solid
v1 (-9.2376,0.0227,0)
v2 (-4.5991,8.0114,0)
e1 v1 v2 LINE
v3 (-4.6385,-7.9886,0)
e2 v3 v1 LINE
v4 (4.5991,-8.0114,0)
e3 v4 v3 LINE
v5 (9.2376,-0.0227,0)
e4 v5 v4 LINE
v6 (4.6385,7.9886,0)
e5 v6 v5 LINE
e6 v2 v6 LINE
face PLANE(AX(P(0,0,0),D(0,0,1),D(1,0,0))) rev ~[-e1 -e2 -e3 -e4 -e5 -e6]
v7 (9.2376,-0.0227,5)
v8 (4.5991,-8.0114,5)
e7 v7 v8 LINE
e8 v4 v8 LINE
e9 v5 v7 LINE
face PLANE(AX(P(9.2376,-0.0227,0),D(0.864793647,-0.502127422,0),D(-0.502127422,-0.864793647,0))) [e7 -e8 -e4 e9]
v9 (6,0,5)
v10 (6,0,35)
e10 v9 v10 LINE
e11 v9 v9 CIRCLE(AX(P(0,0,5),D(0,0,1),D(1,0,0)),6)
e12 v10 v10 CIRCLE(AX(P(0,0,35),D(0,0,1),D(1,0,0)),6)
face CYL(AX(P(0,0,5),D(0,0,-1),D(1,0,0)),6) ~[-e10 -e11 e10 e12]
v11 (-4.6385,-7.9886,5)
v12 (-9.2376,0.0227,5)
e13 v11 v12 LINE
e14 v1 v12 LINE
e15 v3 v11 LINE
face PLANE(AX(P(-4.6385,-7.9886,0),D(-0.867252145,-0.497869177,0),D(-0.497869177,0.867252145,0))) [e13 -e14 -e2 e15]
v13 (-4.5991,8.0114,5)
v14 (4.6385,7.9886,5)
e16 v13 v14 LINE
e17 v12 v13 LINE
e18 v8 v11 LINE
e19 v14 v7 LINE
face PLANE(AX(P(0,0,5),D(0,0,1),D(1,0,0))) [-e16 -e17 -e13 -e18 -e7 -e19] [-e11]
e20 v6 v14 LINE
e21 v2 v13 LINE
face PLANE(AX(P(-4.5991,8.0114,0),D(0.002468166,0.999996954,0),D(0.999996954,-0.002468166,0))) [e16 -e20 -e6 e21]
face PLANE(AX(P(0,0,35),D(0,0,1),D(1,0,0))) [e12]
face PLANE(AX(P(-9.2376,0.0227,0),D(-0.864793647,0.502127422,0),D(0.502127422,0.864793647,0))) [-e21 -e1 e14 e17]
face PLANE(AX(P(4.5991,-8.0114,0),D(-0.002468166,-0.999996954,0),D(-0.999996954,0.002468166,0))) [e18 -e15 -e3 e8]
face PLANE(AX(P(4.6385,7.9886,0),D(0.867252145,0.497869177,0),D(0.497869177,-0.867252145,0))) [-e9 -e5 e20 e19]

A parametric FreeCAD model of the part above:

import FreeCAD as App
import Part
import Sketcher

V = App.Vector
Q = App.Units.Quantity


def add_polygon(sketch, points):
    """Adds a closed chain of lines whose ends are joined by coincident constraints."""
    first, n = sketch.GeometryCount, len(points)
    for a, b in zip(points, points[1:] + points[:1]):
        sketch.addGeometry(Part.LineSegment(App.Vector(*a, 0), App.Vector(*b, 0)), False)
    for i in range(n):
        sketch.addConstraint(Sketcher.Constraint("Coincident", first + i, 2, first + (i + 1) % n, 1))

doc = App.newDocument("Part")
body = doc.addObject("PartDesign::Body", "Body")

sketch1 = doc.addObject("Sketcher::SketchObject", "Sketch")
body.addObject(sketch1)
sketch1.AttachmentSupport = (doc.XY_Plane, [""])
sketch1.MapMode = "FlatFace"
add_polygon(sketch1, [(-5, -8), (5, -8), (9, 0), (5, 8), (-5, 8), (-9, 0)])
sketch1.addConstraint([
    Sketcher.Constraint("Symmetric", 0, 2, 3, 2, -1, 1),
    Sketcher.Constraint("Symmetric", 1, 2, 4, 2, -1, 1),
    Sketcher.Constraint("Symmetric", 2, 2, 5, 2, -1, 1),
    Sketcher.Constraint("Equal", 0, 1),
    Sketcher.Constraint("Equal", 1, 2),
    Sketcher.Constraint("DistanceY", 0, 2, 2, 2, 16.0),
    Sketcher.Constraint("Angle", 1, Q("59.8592 deg")),
    Sketcher.Constraint("Angle", 2, Q("119.8591 deg")),
    Sketcher.Constraint("DistanceY", 1, 2, 3, 2, 8.034),
])
pad1 = doc.addObject("PartDesign::Pad", "Pad")
body.addObject(pad1)
pad1.Profile = sketch1
pad1.Length = 5

sketch2 = doc.addObject("Sketcher::SketchObject", "Sketch001")
body.addObject(sketch2)
sketch2.AttachmentSupport = (doc.XY_Plane, [""])
sketch2.MapMode = "FlatFace"
sketch2.AttachmentOffset = App.Placement(V(0, 0, 5), App.Rotation())
sketch2.addGeometry(Part.Circle(V(0, 0, 0), V(0, 0, 1), 6), False)
sketch2.addConstraint([
    Sketcher.Constraint("Coincident", 0, 3, -1, 1),
    Sketcher.Constraint("Diameter", 0, 12.0),
])
pad2 = doc.addObject("PartDesign::Pad", "Pad001")
body.addObject(pad2)
pad2.Profile = sketch2
pad2.Length = 30

doc.recompute()
